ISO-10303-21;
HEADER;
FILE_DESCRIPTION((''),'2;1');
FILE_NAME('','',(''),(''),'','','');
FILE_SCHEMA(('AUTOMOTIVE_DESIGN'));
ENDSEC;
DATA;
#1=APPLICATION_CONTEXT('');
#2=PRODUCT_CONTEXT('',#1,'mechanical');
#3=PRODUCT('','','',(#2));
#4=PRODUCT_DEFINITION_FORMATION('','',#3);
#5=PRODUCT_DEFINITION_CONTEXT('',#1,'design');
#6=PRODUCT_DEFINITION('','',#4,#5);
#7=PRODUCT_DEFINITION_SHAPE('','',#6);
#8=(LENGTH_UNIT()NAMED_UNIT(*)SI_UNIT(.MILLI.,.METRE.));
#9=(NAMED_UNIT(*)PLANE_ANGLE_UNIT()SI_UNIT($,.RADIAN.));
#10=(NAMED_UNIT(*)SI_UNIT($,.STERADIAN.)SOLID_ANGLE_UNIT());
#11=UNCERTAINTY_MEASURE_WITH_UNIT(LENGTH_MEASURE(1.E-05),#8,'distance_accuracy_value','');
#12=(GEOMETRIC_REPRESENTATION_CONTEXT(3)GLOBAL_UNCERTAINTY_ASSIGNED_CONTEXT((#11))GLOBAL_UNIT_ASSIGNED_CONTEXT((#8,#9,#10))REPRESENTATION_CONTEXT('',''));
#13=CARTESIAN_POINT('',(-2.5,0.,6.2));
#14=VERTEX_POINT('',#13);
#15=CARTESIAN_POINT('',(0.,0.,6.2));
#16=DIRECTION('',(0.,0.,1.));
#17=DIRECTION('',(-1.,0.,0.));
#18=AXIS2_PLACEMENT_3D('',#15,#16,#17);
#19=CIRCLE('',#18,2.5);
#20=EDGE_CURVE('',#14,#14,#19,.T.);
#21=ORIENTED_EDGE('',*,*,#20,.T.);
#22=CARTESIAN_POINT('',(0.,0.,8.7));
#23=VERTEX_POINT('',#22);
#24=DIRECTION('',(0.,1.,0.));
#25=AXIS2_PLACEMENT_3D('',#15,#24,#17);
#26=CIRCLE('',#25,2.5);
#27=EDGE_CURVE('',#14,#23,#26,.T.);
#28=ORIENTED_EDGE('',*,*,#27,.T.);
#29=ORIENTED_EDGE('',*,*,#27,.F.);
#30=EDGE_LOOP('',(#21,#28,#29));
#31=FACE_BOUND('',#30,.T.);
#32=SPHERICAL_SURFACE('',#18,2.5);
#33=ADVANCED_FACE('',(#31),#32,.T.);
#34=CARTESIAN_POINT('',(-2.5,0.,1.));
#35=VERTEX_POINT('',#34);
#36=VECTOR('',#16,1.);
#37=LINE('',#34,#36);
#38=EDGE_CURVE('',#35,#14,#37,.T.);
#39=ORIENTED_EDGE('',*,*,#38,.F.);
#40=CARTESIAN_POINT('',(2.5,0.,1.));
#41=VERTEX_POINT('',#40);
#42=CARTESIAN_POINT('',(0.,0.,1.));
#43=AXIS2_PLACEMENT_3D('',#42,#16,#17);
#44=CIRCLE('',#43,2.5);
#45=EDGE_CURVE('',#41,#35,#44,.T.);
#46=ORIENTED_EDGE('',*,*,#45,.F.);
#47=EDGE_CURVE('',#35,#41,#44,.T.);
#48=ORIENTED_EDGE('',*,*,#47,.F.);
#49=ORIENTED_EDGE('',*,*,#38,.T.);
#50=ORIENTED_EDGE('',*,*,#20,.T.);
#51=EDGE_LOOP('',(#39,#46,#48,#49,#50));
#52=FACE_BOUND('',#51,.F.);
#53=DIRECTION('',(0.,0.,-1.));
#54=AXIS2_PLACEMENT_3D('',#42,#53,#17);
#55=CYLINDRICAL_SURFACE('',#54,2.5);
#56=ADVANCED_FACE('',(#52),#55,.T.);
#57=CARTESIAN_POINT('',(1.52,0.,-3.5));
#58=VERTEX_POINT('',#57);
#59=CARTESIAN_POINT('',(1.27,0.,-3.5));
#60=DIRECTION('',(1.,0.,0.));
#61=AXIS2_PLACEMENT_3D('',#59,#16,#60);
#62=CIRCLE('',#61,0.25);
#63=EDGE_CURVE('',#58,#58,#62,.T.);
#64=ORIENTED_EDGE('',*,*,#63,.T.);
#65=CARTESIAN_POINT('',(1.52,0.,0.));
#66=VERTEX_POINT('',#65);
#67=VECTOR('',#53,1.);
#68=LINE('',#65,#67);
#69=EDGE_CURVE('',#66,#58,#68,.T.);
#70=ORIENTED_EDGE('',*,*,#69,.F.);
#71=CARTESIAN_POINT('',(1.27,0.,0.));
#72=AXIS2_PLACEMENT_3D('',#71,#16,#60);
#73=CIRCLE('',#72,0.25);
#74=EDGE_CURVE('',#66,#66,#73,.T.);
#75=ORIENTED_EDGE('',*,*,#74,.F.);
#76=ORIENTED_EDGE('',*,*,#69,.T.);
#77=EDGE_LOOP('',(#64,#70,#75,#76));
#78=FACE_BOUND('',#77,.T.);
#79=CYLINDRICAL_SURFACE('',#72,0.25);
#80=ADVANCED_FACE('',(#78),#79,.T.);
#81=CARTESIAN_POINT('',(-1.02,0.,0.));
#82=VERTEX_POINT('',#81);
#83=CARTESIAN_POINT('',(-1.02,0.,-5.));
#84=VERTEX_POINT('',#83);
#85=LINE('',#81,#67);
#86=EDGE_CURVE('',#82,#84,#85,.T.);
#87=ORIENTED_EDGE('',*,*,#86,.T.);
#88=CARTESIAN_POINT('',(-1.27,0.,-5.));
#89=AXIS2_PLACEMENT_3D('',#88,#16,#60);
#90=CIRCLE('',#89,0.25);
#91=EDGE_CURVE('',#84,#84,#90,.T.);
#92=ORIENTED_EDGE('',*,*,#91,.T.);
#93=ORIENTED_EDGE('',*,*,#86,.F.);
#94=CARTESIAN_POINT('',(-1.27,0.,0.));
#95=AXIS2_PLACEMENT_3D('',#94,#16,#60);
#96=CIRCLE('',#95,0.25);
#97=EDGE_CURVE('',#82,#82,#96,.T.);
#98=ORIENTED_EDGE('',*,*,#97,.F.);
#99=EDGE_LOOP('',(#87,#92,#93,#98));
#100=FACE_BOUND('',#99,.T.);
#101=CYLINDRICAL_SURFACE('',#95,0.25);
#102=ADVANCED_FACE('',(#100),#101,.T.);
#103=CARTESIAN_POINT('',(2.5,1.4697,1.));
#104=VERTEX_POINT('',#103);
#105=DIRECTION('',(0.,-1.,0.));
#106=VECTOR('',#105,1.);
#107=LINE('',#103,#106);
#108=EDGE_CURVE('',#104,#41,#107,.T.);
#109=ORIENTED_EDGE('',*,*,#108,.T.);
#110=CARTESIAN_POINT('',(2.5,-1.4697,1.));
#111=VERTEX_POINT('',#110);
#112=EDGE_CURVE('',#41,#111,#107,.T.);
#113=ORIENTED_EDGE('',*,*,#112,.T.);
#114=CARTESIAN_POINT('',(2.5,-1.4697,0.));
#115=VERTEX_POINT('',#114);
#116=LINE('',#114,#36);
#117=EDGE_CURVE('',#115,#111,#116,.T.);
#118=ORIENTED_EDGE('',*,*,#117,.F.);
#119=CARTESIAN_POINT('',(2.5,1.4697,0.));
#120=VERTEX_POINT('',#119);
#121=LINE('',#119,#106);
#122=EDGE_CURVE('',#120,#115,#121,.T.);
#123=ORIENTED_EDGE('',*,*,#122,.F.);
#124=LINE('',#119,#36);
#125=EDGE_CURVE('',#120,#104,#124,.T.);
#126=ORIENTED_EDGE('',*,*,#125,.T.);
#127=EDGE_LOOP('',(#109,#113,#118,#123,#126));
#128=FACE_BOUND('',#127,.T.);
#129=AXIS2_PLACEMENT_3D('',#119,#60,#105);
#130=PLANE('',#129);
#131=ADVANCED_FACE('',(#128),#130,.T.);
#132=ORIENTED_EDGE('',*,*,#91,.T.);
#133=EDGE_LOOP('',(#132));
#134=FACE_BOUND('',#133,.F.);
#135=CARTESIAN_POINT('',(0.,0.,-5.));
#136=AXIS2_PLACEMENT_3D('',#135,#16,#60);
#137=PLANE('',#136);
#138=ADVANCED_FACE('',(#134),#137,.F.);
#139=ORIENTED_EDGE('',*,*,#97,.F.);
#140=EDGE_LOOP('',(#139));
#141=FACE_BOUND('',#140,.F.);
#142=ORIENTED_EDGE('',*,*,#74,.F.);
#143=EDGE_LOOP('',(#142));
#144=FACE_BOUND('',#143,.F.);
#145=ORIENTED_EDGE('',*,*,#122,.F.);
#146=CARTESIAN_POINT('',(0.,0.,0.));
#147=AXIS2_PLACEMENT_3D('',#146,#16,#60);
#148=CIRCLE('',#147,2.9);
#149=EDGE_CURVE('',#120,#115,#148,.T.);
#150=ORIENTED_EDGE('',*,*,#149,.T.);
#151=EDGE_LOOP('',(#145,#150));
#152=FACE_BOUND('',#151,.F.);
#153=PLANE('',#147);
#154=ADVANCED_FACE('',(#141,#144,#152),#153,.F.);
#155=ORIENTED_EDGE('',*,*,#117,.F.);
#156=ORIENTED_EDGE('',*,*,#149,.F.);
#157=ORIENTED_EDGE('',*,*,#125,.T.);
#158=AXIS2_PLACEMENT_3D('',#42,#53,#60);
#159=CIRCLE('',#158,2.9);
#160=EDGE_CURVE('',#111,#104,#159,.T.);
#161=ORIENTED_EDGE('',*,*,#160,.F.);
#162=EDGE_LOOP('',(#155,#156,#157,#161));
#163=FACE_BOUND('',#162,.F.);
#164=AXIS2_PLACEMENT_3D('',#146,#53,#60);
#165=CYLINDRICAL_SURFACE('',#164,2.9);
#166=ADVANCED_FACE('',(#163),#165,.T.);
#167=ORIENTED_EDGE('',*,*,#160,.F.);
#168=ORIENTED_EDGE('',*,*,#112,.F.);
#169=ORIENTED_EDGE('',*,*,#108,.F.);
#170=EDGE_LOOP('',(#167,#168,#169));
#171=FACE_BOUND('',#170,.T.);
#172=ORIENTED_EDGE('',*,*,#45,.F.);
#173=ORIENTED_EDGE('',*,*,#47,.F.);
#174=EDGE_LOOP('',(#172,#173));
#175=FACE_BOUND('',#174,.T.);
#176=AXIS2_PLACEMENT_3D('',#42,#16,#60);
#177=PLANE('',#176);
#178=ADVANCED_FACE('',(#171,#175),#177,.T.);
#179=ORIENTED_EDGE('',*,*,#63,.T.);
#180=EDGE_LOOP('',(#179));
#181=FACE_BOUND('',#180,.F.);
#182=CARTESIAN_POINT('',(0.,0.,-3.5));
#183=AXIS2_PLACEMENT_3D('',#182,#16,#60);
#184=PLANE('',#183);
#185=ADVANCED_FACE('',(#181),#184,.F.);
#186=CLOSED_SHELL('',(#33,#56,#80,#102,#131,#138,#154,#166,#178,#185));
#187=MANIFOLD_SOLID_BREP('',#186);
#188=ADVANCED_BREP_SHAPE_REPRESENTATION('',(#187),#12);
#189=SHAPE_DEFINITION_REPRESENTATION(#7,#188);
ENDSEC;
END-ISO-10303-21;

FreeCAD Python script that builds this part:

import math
import FreeCAD as App
import Part
import Sketcher
from FreeCAD import Vector


def edges_at(feature, points):
    """Names of the edges that pass closest to the given points."""
    edges = feature.Shape.Edges
    near = lambda p: min(range(len(edges)), key=lambda i: edges[i].distToShape(Part.Vertex(*p))[0])
    return sorted({f"Edge{near(p) + 1}" for p in points})

doc = App.newDocument("Part")
body = doc.addObject("PartDesign::Body", "Body")

# Sketch on XY plane
sketch1 = body.newObject("Sketcher::SketchObject", "Sketch")
sketch1.AttachmentSupport = (doc.getObject("XY_Plane"), [""])
sketch1.MapMode = "FlatFace"
sketch1.addGeometry(Part.Circle(Vector(0, 0, 0), Vector(0, 0, 1), 2.9), False)
sketch1.addConstraint([
    Sketcher.Constraint("Coincident", 0, 3, -1, 1),
    Sketcher.Constraint("Diameter", 0, 5.8),
])
pad1 = body.newObject("PartDesign::Pad", "Pad")
pad1.Profile = sketch1
pad1.Length = 1

# Sketch on XY plane
sketch2 = body.newObject("Sketcher::SketchObject", "Sketch001")
sketch2.AttachmentSupport = (doc.getObject("XY_Plane"), [""])
sketch2.MapMode = "FlatFace"
sketch2.AttachmentOffset = App.Placement(Vector(0, 0, 1), App.Rotation())
sketch2.addGeometry(Part.Circle(Vector(0, 0, 0), Vector(0, 0, 1), 2.5), False)
sketch2.addConstraint([
    Sketcher.Constraint("Coincident", 0, 3, -1, 1),
    Sketcher.Constraint("Diameter", 0, 5.0),
])
pad2 = body.newObject("PartDesign::Pad", "Pad001")
pad2.Profile = sketch2
pad2.Length = 7.7
doc.recompute()

fillet = body.newObject("PartDesign::Fillet", "Fillet")
fillet.Base = (pad2, edges_at(pad2, [(2.331, 0.904, 8.7)]))
fillet.Radius = 2.5

# Sketch on XY plane
sketch3 = body.newObject("Sketcher::SketchObject", "Sketch002")
sketch3.AttachmentSupport = (doc.getObject("XY_Plane"), [""])
sketch3.MapMode = "FlatFace"
sketch3.addGeometry([
    Part.ArcOfCircle(Part.Circle(Vector(0, 0, 0), Vector(0, 0, 1), 2.9), math.radians(-30), math.radians(30)),
    Part.LineSegment(Vector(2.5, -1.5, 0), Vector(2.5, 1.5, 0)),
], False)
sketch3.addConstraint([
    Sketcher.Constraint("Coincident", 0, 1, 1, 1),
    Sketcher.Constraint("Coincident", 1, 2, 0, 2),
    Sketcher.Constraint("Vertical", 1),
    Sketcher.Constraint("Coincident", 0, 3, -1, 1),
    Sketcher.Constraint("Radius", 0, 2.9),
    Sketcher.Constraint("DistanceX", -1, 1, 0, 1, 2.5),
])
pocket1 = body.newObject("PartDesign::Pocket", "Pocket")
pocket1.Profile = sketch3
pocket1.Length = 1
pocket1.Reversed = True

# Sketch on XY plane
sketch4 = body.newObject("Sketcher::SketchObject", "Sketch003")
sketch4.AttachmentSupport = (doc.getObject("XY_Plane"), [""])
sketch4.MapMode = "FlatFace"
sketch4.addGeometry(Part.Circle(Vector(-1.27, 0, 0), Vector(0, 0, 1), 0.25), False)
sketch4.addConstraint([
    Sketcher.Constraint("PointOnObject", 0, 3, -1),
    Sketcher.Constraint("Diameter", 0, 0.5),
    Sketcher.Constraint("DistanceX", 0, 3, -1, 1, 1.27),
])
pad3 = body.newObject("PartDesign::Pad", "Pad002")
pad3.Profile = sketch4
pad3.Length = 5
pad3.Reversed = True

# Sketch on XY plane
sketch5 = body.newObject("Sketcher::SketchObject", "Sketch004")
sketch5.AttachmentSupport = (doc.getObject("XY_Plane"), [""])
sketch5.MapMode = "FlatFace"
sketch5.addGeometry(Part.Circle(Vector(1.27, 0, 0), Vector(0, 0, 1), 0.25), False)
sketch5.addConstraint([
    Sketcher.Constraint("PointOnObject", 0, 3, -1),
    Sketcher.Constraint("Diameter", 0, 0.5),
    Sketcher.Constraint("DistanceX", -1, 1, 0, 3, 1.27),
])
pad4 = body.newObject("PartDesign::Pad", "Pad003")
pad4.Profile = sketch5
pad4.Length = 3.5
pad4.Reversed = True

doc.recompute()
